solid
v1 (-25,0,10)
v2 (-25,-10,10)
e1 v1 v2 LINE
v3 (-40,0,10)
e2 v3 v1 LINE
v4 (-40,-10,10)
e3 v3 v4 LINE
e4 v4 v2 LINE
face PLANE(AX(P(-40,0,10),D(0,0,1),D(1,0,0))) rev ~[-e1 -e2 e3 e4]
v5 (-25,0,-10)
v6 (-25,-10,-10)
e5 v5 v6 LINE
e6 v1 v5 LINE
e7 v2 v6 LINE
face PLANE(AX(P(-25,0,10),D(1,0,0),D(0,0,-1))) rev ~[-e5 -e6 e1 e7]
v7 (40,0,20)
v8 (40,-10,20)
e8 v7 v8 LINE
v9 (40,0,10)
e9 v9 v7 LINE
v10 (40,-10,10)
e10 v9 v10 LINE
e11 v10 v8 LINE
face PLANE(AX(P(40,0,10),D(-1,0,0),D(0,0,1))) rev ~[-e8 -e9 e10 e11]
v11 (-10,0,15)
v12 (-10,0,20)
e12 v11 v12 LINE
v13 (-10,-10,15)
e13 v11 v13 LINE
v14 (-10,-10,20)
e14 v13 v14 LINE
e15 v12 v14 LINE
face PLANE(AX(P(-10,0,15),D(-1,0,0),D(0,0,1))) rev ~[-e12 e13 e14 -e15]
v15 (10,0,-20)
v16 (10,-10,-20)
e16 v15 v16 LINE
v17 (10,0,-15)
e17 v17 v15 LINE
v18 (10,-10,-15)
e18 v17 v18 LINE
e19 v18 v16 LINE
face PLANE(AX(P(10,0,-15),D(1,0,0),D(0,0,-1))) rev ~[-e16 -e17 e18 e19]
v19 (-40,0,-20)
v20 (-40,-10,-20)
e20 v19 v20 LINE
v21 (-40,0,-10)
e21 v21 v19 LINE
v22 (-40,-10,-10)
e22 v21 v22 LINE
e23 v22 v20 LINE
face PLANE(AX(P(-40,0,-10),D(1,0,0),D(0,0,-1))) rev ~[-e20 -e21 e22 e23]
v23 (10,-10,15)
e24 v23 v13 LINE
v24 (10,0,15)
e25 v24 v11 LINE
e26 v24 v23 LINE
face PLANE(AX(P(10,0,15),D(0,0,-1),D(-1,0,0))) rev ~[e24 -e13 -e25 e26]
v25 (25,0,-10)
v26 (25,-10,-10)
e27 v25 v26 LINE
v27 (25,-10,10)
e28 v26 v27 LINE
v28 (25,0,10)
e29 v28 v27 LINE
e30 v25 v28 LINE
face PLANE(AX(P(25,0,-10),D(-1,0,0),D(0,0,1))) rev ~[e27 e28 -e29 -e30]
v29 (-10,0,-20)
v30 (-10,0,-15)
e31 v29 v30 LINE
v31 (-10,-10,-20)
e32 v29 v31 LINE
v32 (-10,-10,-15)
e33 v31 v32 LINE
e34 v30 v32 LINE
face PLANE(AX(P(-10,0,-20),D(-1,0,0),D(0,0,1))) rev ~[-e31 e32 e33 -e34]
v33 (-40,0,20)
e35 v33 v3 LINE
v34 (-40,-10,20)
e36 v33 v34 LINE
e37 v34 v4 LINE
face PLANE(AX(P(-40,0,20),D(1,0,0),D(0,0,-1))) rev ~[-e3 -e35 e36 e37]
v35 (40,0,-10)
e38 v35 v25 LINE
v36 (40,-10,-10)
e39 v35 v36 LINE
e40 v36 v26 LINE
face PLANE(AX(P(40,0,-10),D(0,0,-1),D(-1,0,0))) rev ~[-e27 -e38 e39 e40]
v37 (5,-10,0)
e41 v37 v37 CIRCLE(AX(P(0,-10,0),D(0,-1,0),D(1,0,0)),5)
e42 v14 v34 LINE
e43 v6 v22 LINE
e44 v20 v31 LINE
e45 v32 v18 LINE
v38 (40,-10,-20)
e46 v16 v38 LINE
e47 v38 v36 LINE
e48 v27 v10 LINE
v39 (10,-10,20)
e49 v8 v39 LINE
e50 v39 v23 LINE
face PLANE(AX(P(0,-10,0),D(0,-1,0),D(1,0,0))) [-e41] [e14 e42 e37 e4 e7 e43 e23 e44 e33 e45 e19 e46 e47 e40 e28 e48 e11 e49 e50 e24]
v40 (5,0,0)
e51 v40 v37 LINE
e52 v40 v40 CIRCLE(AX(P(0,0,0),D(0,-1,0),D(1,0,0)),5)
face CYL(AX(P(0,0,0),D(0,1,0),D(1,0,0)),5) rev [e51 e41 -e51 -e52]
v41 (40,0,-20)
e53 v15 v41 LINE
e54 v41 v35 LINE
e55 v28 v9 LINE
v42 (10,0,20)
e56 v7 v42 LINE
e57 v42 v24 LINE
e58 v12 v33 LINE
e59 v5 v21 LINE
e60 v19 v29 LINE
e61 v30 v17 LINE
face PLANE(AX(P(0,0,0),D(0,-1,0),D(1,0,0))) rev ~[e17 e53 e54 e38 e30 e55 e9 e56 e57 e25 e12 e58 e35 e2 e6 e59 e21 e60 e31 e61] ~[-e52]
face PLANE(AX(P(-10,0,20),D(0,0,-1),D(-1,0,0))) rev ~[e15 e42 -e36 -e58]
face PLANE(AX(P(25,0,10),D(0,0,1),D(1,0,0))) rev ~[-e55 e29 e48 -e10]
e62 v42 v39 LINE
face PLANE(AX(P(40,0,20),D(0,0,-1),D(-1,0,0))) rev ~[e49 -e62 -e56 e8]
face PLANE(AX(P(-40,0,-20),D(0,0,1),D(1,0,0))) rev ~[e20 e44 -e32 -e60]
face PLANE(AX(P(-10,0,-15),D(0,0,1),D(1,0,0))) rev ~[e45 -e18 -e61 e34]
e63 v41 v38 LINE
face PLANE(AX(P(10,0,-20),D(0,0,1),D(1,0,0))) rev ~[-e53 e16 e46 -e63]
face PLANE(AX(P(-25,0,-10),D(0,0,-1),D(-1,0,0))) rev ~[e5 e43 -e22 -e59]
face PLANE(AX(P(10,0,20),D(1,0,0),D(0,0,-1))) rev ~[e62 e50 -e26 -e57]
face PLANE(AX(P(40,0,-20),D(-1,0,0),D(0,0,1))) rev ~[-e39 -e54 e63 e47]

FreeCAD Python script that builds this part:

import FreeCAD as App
import Part
import Sketcher
from FreeCAD import Vector

doc = App.newDocument("Part")
body = doc.addObject("PartDesign::Body", "Body")

# Sketch on XZ plane
sketch1 = body.newObject("Sketcher::SketchObject", "Sketch")
sketch1.AttachmentSupport = (doc.getObject("XZ_Plane"), [""])
sketch1.MapMode = "FlatFace"
sketch1.addGeometry(Part.LineSegment(Vector(-10, 20, 0), Vector(-40, 20, 0)), False)
sketch1.addGeometry(Part.LineSegment(Vector(-40, 20, 0), Vector(-40, 10, 0)), False)
sketch1.addGeometry(Part.LineSegment(Vector(-40, 10, 0), Vector(-25, 10, 0)), False)
sketch1.addGeometry(Part.LineSegment(Vector(-25, 10, 0), Vector(-25, -10, 0)), False)
sketch1.addGeometry(Part.LineSegment(Vector(-25, -10, 0), Vector(-40, -10, 0)), False)
sketch1.addGeometry(Part.LineSegment(Vector(-40, -10, 0), Vector(-40, -20, 0)), False)
sketch1.addGeometry(Part.LineSegment(Vector(-40, -20, 0), Vector(-10, -20, 0)), False)
sketch1.addGeometry(Part.LineSegment(Vector(-10, -20, 0), Vector(-10, -15, 0)), False)
sketch1.addGeometry(Part.LineSegment(Vector(-10, -15, 0), Vector(10, -15, 0)), False)
sketch1.addGeometry(Part.LineSegment(Vector(10, -15, 0), Vector(10, -20, 0)), False)
sketch1.addGeometry(Part.LineSegment(Vector(10, -20, 0), Vector(40, -20, 0)), False)
sketch1.addGeometry(Part.LineSegment(Vector(40, -20, 0), Vector(40, -10, 0)), False)
sketch1.addGeometry(Part.LineSegment(Vector(40, -10, 0), Vector(25, -10, 0)), False)
sketch1.addGeometry(Part.LineSegment(Vector(25, -10, 0), Vector(25, 10, 0)), False)
sketch1.addGeometry(Part.LineSegment(Vector(25, 10, 0), Vector(40, 10, 0)), False)
sketch1.addGeometry(Part.LineSegment(Vector(40, 10, 0), Vector(40, 20, 0)), False)
sketch1.addGeometry(Part.LineSegment(Vector(40, 20, 0), Vector(10, 20, 0)), False)
sketch1.addGeometry(Part.LineSegment(Vector(10, 20, 0), Vector(10, 15, 0)), False)
sketch1.addGeometry(Part.LineSegment(Vector(10, 15, 0), Vector(-10, 15, 0)), False)
sketch1.addGeometry(Part.LineSegment(Vector(-10, 15, 0), Vector(-10, 20, 0)), False)
sketch1.addGeometry(Part.Circle(Vector(0, 0, 0), Vector(0, 0, 1), 5), False)
sketch1.addConstraint(Sketcher.Constraint("Coincident", 0, 2, 1, 1))
sketch1.addConstraint(Sketcher.Constraint("Coincident", 1, 2, 2, 1))
sketch1.addConstraint(Sketcher.Constraint("Coincident", 2, 2, 3, 1))
sketch1.addConstraint(Sketcher.Constraint("Coincident", 3, 2, 4, 1))
sketch1.addConstraint(Sketcher.Constraint("Coincident", 4, 2, 5, 1))
sketch1.addConstraint(Sketcher.Constraint("Coincident", 5, 2, 6, 1))
sketch1.addConstraint(Sketcher.Constraint("Coincident", 6, 2, 7, 1))
sketch1.addConstraint(Sketcher.Constraint("Coincident", 7, 2, 8, 1))
sketch1.addConstraint(Sketcher.Constraint("Coincident", 8, 2, 9, 1))
sketch1.addConstraint(Sketcher.Constraint("Coincident", 9, 2, 10, 1))
sketch1.addConstraint(Sketcher.Constraint("Coincident", 10, 2, 11, 1))
sketch1.addConstraint(Sketcher.Constraint("Coincident", 11, 2, 12, 1))
sketch1.addConstraint(Sketcher.Constraint("Coincident", 12, 2, 13, 1))
sketch1.addConstraint(Sketcher.Constraint("Coincident", 13, 2, 14, 1))
sketch1.addConstraint(Sketcher.Constraint("Coincident", 14, 2, 15, 1))
sketch1.addConstraint(Sketcher.Constraint("Coincident", 15, 2, 16, 1))
sketch1.addConstraint(Sketcher.Constraint("Coincident", 16, 2, 17, 1))
sketch1.addConstraint(Sketcher.Constraint("Coincident", 17, 2, 18, 1))
sketch1.addConstraint(Sketcher.Constraint("Coincident", 18, 2, 19, 1))
sketch1.addConstraint(Sketcher.Constraint("Coincident", 19, 2, 0, 1))
sketch1.addConstraint(Sketcher.Constraint("Horizontal", 0))
sketch1.addConstraint(Sketcher.Constraint("Vertical", 1))
sketch1.addConstraint(Sketcher.Constraint("Horizontal", 2))
sketch1.addConstraint(Sketcher.Constraint("Vertical", 3))
sketch1.addConstraint(Sketcher.Constraint("Horizontal", 4))
sketch1.addConstraint(Sketcher.Constraint("Vertical", 5))
sketch1.addConstraint(Sketcher.Constraint("Horizontal", 6))
sketch1.addConstraint(Sketcher.Constraint("Vertical", 7))
sketch1.addConstraint(Sketcher.Constraint("Horizontal", 8))
sketch1.addConstraint(Sketcher.Constraint("Vertical", 9))
sketch1.addConstraint(Sketcher.Constraint("Horizontal", 10))
sketch1.addConstraint(Sketcher.Constraint("Vertical", 11))
sketch1.addConstraint(Sketcher.Constraint("Horizontal", 12))
sketch1.addConstraint(Sketcher.Constraint("Vertical", 13))
sketch1.addConstraint(Sketcher.Constraint("Horizontal", 14))
sketch1.addConstraint(Sketcher.Constraint("Vertical", 15))
sketch1.addConstraint(Sketcher.Constraint("Horizontal", 16))
sketch1.addConstraint(Sketcher.Constraint("Vertical", 17))
sketch1.addConstraint(Sketcher.Constraint("Horizontal", 18))
sketch1.addConstraint(Sketcher.Constraint("Vertical", 19))
sketch1.addConstraint(Sketcher.Constraint("Coincident", 20, 3, -1, 1))
sketch1.addConstraint(Sketcher.Constraint("Symmetric", 0, 2, 10, 2, -1, 1))
sketch1.addConstraint(Sketcher.Constraint("Symmetric", 2, 2, 12, 2, -1, 1))
sketch1.addConstraint(Sketcher.Constraint("Symmetric", 4, 2, 14, 2, -1, 1))
sketch1.addConstraint(Sketcher.Constraint("Symmetric", 6, 2, 16, 2, -1, 1))
sketch1.addConstraint(Sketcher.Constraint("Symmetric", 8, 2, 18, 2, -1, 1))
sketch1.addConstraint(Sketcher.Constraint("Symmetric", 6, 2, 9, 2, -2))
sketch1.addConstraint(Sketcher.Constraint("Symmetric", 4, 2, 11, 2, -2))
sketch1.addConstraint(Sketcher.Constraint("Equal", 18, 3))
sketch1.addConstraint(Sketcher.Constraint("Diameter", 20, 10.0))
sketch1.addConstraint(Sketcher.Constraint("DistanceX", 0, 2, 0, 1, 30.0))
sketch1.addConstraint(Sketcher.Constraint("DistanceX", 2, 1, 2, 2, 15.0))
sketch1.addConstraint(Sketcher.Constraint("DistanceX", 8, 1, 8, 2, 20.0))
sketch1.addConstraint(Sketcher.Constraint("DistanceY", 1, 2, 1, 1, 10.0))
sketch1.addConstraint(Sketcher.Constraint("DistanceY", 7, 1, 7, 2, 5.0))
pad1 = body.newObject("PartDesign::Pad", "Pad")
pad1.Profile = sketch1
pad1.Length = 10

doc.recompute()
